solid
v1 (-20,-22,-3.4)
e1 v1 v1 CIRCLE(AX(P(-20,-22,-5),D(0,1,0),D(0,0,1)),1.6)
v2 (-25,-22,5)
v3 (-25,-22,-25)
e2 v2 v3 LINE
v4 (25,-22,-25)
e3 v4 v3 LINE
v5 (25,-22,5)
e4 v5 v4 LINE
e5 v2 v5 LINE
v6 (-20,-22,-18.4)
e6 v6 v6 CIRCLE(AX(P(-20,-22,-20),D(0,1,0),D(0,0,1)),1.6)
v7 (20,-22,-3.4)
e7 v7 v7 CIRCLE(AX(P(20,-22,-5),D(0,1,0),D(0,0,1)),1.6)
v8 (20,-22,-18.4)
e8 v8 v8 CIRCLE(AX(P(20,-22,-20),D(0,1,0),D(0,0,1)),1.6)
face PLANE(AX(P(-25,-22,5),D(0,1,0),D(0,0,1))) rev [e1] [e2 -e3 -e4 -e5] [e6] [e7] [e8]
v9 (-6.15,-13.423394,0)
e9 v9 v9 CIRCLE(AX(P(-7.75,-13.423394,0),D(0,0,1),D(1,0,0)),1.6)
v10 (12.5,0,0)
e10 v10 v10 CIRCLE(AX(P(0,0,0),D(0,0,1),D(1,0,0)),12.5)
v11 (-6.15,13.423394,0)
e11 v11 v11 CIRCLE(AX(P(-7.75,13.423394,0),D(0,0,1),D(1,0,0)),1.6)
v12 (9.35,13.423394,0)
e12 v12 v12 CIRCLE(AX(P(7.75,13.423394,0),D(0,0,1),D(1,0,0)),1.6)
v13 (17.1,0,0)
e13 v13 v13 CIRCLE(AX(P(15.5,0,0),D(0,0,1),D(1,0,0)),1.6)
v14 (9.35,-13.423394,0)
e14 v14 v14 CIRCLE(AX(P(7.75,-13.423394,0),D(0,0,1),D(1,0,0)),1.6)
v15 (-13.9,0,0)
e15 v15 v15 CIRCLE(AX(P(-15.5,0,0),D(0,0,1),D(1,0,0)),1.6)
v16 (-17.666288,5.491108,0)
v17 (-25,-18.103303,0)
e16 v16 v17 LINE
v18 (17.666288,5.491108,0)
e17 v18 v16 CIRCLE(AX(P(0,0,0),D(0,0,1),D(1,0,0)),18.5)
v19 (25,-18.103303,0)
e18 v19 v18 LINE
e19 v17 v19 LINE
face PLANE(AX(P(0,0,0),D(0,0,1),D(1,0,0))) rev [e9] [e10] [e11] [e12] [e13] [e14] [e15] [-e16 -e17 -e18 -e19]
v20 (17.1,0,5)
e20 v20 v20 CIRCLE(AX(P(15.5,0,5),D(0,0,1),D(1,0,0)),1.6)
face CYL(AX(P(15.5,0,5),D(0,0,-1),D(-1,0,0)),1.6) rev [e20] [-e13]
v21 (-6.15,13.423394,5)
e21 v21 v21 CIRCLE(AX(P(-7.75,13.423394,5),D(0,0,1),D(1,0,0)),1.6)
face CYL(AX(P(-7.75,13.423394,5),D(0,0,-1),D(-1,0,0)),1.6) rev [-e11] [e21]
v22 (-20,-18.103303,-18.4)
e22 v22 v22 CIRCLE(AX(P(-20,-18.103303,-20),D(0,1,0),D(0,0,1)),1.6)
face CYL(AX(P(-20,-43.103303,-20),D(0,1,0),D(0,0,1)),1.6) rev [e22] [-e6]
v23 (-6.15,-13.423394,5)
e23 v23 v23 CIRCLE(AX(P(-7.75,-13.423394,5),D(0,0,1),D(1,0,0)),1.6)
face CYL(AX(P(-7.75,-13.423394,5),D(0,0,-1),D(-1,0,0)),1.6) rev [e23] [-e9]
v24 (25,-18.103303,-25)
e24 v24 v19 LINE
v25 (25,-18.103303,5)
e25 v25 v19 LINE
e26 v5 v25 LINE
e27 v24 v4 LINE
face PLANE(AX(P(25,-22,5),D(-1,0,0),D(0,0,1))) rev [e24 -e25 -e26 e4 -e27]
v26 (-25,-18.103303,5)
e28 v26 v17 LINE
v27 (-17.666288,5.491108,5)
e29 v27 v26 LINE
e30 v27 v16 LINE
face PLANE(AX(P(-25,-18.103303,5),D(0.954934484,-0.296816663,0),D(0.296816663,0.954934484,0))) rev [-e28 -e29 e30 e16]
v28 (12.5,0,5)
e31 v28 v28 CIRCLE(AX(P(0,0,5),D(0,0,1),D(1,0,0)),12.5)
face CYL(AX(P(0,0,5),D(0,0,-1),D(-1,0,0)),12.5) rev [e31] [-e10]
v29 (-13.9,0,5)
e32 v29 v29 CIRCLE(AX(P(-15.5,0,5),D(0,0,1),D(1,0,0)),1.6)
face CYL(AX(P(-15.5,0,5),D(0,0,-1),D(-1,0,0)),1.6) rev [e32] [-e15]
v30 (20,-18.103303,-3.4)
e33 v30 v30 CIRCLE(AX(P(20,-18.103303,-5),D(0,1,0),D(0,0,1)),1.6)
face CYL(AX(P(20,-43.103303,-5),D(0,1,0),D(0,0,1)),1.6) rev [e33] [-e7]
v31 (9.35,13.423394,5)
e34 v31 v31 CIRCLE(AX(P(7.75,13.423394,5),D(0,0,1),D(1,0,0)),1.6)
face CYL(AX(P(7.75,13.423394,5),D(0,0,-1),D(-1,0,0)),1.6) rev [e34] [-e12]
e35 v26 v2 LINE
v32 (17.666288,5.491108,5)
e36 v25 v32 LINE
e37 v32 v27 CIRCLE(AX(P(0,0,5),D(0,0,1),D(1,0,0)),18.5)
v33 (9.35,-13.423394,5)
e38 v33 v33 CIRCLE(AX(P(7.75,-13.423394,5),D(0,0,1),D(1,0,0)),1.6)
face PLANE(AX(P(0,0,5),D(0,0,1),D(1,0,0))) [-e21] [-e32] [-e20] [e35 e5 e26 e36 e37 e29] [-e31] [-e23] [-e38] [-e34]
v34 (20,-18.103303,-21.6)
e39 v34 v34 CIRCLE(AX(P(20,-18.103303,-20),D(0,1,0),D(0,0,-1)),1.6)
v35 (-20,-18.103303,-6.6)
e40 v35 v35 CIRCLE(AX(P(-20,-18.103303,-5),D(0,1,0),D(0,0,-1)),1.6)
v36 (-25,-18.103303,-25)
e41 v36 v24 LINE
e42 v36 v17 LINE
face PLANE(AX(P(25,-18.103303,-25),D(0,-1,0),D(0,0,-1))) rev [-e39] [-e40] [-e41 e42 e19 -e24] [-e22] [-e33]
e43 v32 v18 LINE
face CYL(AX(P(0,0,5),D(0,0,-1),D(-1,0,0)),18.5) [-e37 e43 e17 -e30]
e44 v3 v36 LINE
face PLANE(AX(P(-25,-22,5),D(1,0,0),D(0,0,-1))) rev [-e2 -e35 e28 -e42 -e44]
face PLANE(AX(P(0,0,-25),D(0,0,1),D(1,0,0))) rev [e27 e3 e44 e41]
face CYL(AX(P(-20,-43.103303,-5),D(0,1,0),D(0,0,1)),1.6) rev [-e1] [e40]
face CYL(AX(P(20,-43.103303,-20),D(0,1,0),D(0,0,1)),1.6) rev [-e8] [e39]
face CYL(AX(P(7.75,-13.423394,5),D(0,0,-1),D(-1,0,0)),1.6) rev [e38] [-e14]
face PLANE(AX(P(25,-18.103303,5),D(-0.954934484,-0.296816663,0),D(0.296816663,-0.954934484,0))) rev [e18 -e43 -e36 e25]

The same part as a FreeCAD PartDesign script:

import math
import FreeCAD as App
import Part
import Sketcher
Q = App.Units.Quantity


def add_polygon(sketch, points):
    """Adds a closed chain of lines whose ends are joined by coincident constraints."""
    first, n = sketch.GeometryCount, len(points)
    for a, b in zip(points, points[1:] + points[:1]):
        sketch.addGeometry(Part.LineSegment(App.Vector(*a, 0), App.Vector(*b, 0)), False)
    for i in range(n):
        sketch.addConstraint(Sketcher.Constraint("Coincident", first + i, 2, first + (i + 1) % n, 1))

doc = App.newDocument("Part")
body = doc.addObject("PartDesign::Body", "Body")

sketch1 = body.newObject("Sketcher::SketchObject", "Sketch")
sketch1.AttachmentSupport = (doc.getObject("XY_Plane"), [""])
sketch1.MapMode = "FlatFace"
sketch1.addGeometry([
    Part.LineSegment(App.Vector(-25, -22, 0), App.Vector(25, -22, 0)),
    Part.LineSegment(App.Vector(25, -22, 0), App.Vector(25, -18.1, 0)),
    Part.LineSegment(App.Vector(25, -18.1, 0), App.Vector(17.7, 5.5, 0)),
    Part.ArcOfCircle(Part.Circle(App.Vector(0, 0, 0), App.Vector(0, 0, 1), 18.5), math.radians(17), math.radians(163)),
    Part.LineSegment(App.Vector(-17.7, 5.5, 0), App.Vector(-25, -18.1, 0)),
    Part.LineSegment(App.Vector(-25, -18.1, 0), App.Vector(-25, -22, 0)),
    Part.Circle(App.Vector(-7.8, -13.4, 0), App.Vector(0, 0, 1), 1.6),
    Part.Circle(App.Vector(7.8, -13.4, 0), App.Vector(0, 0, 1), 1.6),
    Part.Circle(App.Vector(-15.5, 0, 0), App.Vector(0, 0, 1), 1.6),
    Part.Circle(App.Vector(-7.8, 13.4, 0), App.Vector(0, 0, 1), 1.6),
    Part.Circle(App.Vector(0, 0, 0), App.Vector(0, 0, 1), 12.5),
    Part.Circle(App.Vector(15.5, 0, 0), App.Vector(0, 0, 1), 1.6),
    Part.Circle(App.Vector(7.8, 13.4, 0), App.Vector(0, 0, 1), 1.6),
], False)
sketch1.addConstraint([
    Sketcher.Constraint("Coincident", 0, 2, 1, 1),
    Sketcher.Constraint("Coincident", 1, 2, 2, 1),
    Sketcher.Constraint("Tangent", 2, 2, 3, 1),
    Sketcher.Constraint("Tangent", 3, 2, 4, 1),
    Sketcher.Constraint("Coincident", 4, 2, 5, 1),
    Sketcher.Constraint("Coincident", 5, 2, 0, 1),
    Sketcher.Constraint("Horizontal", 0),
    Sketcher.Constraint("Vertical", 1),
    Sketcher.Constraint("Vertical", 5),
    Sketcher.Constraint("Coincident", 3, 3, -1, 1),
    Sketcher.Constraint("Coincident", 10, 3, -1, 1),
    Sketcher.Constraint("Equal", 6, 7),
    Sketcher.Constraint("Equal", 7, 8),
    Sketcher.Constraint("Equal", 8, 9),
    Sketcher.Constraint("Equal", 9, 11),
    Sketcher.Constraint("Equal", 11, 12),
    Sketcher.Constraint("Symmetric", 7, 3, 9, 3, -1, 1),
    Sketcher.Constraint("Symmetric", 8, 3, 11, 3, -1, 1),
    Sketcher.Constraint("Symmetric", 6, 3, 12, 3, -1, 1),
    Sketcher.Constraint("Symmetric", 6, 3, 7, 3, -2),
    Sketcher.Constraint("Symmetric", 1, 2, 4, 2, -2),
    Sketcher.Constraint("PointOnObject", 8, 3, -1),
    Sketcher.Constraint("Diameter", 10, Q("25 mm")),
    Sketcher.Constraint("Diameter", 6, Q("3.2 mm")),
    Sketcher.Constraint("Radius", 3, Q("18.5 mm")),
    Sketcher.Constraint("DistanceX", 0, 1, 0, 2, Q("50 mm")),
    Sketcher.Constraint("DistanceY", 0, 2, -1, 1, Q("22 mm")),
    Sketcher.Constraint("DistanceX", 8, 3, -1, 1, Q("15.5 mm")),
    Sketcher.Constraint("DistanceX", 6, 3, 7, 3, Q("15.5 mm")),
    Sketcher.Constraint("DistanceY", 1, 1, 1, 2, Q("3.896697 mm")),
    Sketcher.Constraint("DistanceY", 1, 2, 7, 3, Q("4.67991 mm")),
])
pad1 = body.newObject("PartDesign::Pad", "Pad")
pad1.Profile = sketch1
pad1.Length = 5

sketch2 = body.newObject("Sketcher::SketchObject", "Sketch001")
sketch2.AttachmentSupport = (doc.getObject("XY_Plane"), [""])
sketch2.MapMode = "FlatFace"
add_polygon(sketch2, [(25, -18.1), (25, -22), (-25, -22), (-25, -18.1)])
sketch2.addConstraint([
    Sketcher.Constraint("Vertical", 0),
    Sketcher.Constraint("Horizontal", 1),
    Sketcher.Constraint("Vertical", 2),
    Sketcher.Constraint("Horizontal", 3),
    Sketcher.Constraint("DistanceX", 1, 2, 1, 1, Q("50 mm")),
    Sketcher.Constraint("DistanceX", -1, 1, 0, 2, Q("25 mm")),
    Sketcher.Constraint("DistanceY", 0, 2, -1, 1, Q("22 mm")),
    Sketcher.Constraint("DistanceY", 0, 2, 0, 1, Q("3.896697 mm")),
])
pad2 = body.newObject("PartDesign::Pad", "Pad001")
pad2.Profile = sketch2
pad2.Length = 25
pad2.Reversed = True

sketch3 = body.newObject("Sketcher::SketchObject", "Sketch002")
sketch3.AttachmentSupport = (doc.getObject("XZ_Plane"), [""])
sketch3.MapMode = "FlatFace"
sketch3.AttachmentOffset = App.Placement(App.Vector(0, 0, 18.103303), App.Rotation())
sketch3.addGeometry([
    Part.Circle(App.Vector(-20, -20, 0), App.Vector(0, 0, 1), 1.6),
    Part.Circle(App.Vector(20, -20, 0), App.Vector(0, 0, 1), 1.6),
    Part.Circle(App.Vector(20, -5, 0), App.Vector(0, 0, 1), 1.6),
    Part.Circle(App.Vector(-20, -5, 0), App.Vector(0, 0, 1), 1.6),
], False)
sketch3.addConstraint([
    Sketcher.Constraint("Equal", 0, 1),
    Sketcher.Constraint("Equal", 1, 2),
    Sketcher.Constraint("Equal", 2, 3),
    Sketcher.Constraint("Symmetric", 0, 3, 1, 3, -2),
    Sketcher.Constraint("Symmetric", 2, 3, 3, 3, -2),
    Sketcher.Constraint("Vertical", 1, 3, 2, 3),
    Sketcher.Constraint("Diameter", 0, Q("3.2 mm")),
    Sketcher.Constraint("DistanceX", 0, 3, -1, 1, Q("20 mm")),
    Sketcher.Constraint("DistanceY", 0, 3, -1, 1, Q("20 mm")),
    Sketcher.Constraint("DistanceY", 2, 3, -1, 1, Q("5 mm")),
])
pocket1 = body.newObject("PartDesign::Pocket", "Pocket")
pocket1.Profile = sketch3
pocket1.Length = 25
pocket1.Reversed = True

doc.recompute()
